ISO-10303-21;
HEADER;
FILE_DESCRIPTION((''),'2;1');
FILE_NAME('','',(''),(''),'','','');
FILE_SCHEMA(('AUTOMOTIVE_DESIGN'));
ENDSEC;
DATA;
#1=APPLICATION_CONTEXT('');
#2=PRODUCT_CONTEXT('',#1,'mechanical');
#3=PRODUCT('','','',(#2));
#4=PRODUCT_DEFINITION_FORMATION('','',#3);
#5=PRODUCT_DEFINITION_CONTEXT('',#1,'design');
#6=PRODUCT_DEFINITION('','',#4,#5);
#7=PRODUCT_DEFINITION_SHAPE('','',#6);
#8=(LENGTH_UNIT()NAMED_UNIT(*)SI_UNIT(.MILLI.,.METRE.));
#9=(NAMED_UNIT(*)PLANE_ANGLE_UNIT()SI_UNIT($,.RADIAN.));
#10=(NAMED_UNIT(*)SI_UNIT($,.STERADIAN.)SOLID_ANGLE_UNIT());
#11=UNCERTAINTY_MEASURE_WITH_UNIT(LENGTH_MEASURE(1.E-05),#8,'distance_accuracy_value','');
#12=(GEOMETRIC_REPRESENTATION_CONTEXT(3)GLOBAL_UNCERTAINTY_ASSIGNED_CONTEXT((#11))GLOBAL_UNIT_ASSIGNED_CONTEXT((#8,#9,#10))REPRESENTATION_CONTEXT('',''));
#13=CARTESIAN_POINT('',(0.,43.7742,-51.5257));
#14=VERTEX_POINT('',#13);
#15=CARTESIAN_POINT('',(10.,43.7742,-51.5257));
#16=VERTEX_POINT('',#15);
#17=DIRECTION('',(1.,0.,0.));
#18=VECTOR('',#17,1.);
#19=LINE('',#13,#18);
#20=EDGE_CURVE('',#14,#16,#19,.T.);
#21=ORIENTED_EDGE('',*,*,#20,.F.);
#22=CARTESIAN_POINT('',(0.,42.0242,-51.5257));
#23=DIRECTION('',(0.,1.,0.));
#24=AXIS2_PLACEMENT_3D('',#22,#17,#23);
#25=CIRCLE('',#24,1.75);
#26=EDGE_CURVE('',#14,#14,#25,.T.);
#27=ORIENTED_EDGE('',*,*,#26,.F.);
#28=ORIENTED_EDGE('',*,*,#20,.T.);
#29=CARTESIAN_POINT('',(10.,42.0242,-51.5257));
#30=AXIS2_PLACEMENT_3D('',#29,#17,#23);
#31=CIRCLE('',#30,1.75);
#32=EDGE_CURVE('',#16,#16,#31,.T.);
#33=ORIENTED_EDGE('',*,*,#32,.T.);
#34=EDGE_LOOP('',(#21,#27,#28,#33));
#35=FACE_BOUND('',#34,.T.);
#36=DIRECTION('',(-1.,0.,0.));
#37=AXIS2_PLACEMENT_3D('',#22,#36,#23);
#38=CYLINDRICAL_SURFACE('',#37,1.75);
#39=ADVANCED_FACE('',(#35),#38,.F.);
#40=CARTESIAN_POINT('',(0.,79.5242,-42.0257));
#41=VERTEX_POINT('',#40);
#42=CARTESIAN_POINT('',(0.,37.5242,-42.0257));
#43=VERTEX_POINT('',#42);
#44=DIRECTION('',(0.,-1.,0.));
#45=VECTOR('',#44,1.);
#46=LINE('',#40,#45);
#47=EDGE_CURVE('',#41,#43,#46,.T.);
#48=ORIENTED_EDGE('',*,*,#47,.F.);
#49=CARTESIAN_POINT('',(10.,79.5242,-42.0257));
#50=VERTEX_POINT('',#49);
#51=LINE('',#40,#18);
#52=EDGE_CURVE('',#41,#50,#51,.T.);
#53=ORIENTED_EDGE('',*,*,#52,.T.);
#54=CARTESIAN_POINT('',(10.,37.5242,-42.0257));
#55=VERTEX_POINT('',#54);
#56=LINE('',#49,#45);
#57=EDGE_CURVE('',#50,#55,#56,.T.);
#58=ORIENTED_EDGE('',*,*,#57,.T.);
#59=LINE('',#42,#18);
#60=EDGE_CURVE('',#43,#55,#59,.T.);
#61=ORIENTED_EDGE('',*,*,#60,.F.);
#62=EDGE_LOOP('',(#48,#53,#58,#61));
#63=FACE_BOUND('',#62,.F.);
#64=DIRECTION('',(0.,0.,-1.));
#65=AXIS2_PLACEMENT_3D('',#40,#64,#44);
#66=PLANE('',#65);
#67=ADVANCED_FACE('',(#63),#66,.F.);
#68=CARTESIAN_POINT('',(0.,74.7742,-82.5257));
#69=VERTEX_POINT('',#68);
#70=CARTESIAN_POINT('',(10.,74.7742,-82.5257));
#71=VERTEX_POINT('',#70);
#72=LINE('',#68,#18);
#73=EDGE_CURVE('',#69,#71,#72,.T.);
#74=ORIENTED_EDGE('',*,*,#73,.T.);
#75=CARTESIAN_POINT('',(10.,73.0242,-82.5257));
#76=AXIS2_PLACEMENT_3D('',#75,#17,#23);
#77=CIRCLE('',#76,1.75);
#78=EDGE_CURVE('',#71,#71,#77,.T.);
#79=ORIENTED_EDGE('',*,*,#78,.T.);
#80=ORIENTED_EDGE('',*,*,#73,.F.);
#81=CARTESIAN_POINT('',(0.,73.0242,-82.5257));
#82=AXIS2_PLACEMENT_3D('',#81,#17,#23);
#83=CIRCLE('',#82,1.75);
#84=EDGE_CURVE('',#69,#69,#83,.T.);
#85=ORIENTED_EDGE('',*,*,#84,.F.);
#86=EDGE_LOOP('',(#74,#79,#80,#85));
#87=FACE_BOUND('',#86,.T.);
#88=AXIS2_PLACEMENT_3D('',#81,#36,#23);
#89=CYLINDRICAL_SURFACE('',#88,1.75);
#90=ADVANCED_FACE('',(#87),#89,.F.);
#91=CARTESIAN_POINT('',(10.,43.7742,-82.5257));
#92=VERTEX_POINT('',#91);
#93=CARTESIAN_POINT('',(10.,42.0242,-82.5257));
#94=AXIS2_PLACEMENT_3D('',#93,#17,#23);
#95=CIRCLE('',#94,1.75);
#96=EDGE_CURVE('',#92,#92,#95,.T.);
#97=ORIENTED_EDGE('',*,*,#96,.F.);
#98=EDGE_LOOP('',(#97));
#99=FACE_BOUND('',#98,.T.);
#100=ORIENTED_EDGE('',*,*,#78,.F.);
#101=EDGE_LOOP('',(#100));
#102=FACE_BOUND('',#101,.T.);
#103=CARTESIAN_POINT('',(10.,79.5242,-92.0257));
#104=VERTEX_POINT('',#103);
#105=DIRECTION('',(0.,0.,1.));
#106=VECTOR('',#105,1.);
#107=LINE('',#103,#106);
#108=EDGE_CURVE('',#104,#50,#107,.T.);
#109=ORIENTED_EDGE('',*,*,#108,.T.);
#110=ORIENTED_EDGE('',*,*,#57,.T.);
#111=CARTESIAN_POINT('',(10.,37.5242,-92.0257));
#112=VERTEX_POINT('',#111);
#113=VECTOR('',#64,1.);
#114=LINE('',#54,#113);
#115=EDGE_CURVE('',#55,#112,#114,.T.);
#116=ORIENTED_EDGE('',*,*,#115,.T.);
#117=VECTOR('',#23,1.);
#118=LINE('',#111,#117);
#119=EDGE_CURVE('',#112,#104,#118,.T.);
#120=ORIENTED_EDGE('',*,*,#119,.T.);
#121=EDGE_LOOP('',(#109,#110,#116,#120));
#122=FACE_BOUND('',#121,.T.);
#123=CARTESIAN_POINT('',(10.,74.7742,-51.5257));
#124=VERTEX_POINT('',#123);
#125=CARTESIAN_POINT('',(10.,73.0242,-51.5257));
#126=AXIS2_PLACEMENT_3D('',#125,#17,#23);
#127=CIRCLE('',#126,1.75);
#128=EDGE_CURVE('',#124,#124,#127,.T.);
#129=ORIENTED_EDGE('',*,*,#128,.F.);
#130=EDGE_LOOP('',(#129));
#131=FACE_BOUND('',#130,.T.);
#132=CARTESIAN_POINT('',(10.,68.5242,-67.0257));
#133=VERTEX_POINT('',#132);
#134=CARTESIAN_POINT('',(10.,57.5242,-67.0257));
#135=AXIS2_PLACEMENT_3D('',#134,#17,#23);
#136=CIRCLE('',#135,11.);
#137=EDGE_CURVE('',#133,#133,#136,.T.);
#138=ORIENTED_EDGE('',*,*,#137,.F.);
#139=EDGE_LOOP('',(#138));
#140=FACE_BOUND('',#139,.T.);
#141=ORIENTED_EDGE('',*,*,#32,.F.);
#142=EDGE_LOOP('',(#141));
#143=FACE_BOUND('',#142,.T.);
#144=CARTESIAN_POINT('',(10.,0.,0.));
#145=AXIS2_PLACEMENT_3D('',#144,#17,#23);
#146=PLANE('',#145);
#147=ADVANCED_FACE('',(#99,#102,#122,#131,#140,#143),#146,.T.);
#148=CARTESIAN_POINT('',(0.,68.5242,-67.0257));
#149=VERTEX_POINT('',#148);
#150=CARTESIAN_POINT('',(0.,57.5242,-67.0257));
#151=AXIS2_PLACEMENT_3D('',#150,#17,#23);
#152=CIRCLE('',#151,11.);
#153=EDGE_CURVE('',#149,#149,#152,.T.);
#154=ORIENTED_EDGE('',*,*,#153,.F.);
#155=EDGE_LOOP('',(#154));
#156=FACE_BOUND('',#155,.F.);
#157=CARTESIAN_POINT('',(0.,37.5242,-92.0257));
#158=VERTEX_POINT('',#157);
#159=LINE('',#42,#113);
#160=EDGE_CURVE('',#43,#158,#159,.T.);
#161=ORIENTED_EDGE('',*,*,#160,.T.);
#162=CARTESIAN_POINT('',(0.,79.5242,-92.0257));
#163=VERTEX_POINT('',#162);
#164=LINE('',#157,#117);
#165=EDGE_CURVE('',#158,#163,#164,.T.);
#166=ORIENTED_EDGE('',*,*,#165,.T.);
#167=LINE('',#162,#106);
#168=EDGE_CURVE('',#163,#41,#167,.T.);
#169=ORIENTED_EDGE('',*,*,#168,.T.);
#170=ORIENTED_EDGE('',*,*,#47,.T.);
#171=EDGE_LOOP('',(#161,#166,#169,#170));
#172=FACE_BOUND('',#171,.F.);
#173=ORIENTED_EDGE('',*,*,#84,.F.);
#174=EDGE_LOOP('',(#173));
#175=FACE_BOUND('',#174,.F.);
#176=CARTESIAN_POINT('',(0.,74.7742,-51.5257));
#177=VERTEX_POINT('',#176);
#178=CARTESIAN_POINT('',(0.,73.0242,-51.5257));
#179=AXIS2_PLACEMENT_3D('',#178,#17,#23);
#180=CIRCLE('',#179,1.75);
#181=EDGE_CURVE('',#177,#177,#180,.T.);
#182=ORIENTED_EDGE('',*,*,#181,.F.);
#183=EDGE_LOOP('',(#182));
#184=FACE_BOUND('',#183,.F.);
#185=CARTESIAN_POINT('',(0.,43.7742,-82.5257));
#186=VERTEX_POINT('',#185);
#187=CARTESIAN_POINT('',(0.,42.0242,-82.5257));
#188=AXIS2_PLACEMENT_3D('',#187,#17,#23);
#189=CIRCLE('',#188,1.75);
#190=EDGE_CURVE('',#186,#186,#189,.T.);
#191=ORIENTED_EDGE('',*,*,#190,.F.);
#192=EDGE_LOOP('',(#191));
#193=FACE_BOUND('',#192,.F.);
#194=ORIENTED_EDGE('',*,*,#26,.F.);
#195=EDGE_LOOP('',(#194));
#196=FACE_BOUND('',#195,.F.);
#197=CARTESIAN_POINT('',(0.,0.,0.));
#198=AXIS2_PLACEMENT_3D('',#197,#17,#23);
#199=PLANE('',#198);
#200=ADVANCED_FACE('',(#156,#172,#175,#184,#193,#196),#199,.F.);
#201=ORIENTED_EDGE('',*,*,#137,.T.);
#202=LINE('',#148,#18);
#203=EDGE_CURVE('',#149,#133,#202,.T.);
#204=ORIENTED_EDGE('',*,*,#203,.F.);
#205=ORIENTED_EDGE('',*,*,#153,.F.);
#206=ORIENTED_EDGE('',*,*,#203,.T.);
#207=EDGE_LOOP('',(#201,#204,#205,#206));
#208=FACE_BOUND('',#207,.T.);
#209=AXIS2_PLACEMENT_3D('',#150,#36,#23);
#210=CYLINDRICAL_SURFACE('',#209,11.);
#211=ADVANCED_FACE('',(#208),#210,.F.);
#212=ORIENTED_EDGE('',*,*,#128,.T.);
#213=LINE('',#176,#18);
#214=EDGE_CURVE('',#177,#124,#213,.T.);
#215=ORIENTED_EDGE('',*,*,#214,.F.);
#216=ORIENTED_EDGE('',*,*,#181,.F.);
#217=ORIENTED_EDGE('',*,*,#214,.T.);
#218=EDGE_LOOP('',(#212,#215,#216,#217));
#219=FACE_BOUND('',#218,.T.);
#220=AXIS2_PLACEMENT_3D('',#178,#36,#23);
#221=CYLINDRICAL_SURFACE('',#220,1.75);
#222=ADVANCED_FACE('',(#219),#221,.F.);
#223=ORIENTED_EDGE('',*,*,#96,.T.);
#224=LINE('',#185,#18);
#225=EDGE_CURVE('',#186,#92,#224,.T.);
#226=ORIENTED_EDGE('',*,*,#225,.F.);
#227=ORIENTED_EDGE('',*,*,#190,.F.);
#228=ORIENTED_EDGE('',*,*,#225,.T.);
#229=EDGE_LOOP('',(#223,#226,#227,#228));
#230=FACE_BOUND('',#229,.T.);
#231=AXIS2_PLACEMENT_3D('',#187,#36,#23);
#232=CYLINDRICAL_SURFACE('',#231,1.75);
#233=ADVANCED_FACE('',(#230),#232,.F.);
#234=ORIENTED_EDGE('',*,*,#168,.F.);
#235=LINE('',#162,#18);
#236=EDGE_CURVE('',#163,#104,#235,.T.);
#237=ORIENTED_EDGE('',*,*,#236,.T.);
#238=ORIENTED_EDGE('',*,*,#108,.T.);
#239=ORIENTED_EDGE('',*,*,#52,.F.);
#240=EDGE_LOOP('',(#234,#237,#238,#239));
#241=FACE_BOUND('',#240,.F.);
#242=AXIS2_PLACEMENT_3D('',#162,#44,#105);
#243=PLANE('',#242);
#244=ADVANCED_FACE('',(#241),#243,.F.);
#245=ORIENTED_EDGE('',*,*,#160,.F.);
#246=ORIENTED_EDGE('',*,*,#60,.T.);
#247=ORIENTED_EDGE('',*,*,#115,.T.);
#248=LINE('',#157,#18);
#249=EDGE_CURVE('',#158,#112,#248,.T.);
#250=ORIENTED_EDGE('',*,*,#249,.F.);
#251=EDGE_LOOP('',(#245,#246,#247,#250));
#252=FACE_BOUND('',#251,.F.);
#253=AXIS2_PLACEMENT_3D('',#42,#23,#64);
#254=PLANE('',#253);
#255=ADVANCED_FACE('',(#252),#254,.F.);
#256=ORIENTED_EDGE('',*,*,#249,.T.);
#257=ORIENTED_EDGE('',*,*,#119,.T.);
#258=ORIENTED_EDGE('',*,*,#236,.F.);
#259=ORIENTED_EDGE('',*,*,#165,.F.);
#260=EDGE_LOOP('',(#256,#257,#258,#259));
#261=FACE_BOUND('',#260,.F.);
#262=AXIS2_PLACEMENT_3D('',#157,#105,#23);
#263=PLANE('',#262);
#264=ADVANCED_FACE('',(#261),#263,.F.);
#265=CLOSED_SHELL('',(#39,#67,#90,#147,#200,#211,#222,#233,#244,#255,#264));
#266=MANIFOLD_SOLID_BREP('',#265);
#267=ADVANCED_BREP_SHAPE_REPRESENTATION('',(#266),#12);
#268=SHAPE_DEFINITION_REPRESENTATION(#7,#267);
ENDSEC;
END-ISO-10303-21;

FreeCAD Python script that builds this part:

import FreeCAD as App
import Part
import Sketcher
from FreeCAD import Vector
Q = App.Units.Quantity


def add_polygon(sketch, points):
    """Adds a closed chain of lines whose ends are joined by coincident constraints."""
    first, n = sketch.GeometryCount, len(points)
    for a, b in zip(points, points[1:] + points[:1]):
        sketch.addGeometry(Part.LineSegment(App.Vector(*a, 0), App.Vector(*b, 0)), False)
    for i in range(n):
        sketch.addConstraint(Sketcher.Constraint("Coincident", first + i, 2, first + (i + 1) % n, 1))

doc = App.newDocument("Part")
body = doc.addObject("PartDesign::Body", "Body")

sketch1 = doc.addObject("Sketcher::SketchObject", "Sketch")
body.addObject(sketch1)
sketch1.AttachmentSupport = (doc.YZ_Plane, [""])
sketch1.MapMode = "FlatFace"
add_polygon(sketch1, [(37.5, -42), (37.5, -92), (79.5, -92), (79.5, -42)])
sketch1.addGeometry(Part.Circle(Vector(42, -82.5, 0), Vector(0, 0, 1), 1.8), False)
sketch1.addGeometry(Part.Circle(Vector(73, -82.5, 0), Vector(0, 0, 1), 1.8), False)
sketch1.addGeometry(Part.Circle(Vector(57.5, -67, 0), Vector(0, 0, 1), 11), False)
sketch1.addGeometry(Part.Circle(Vector(42, -51.5, 0), Vector(0, 0, 1), 1.8), False)
sketch1.addGeometry(Part.Circle(Vector(73, -51.5, 0), Vector(0, 0, 1), 1.8), False)
sketch1.addConstraint(Sketcher.Constraint("Vertical", 0))
sketch1.addConstraint(Sketcher.Constraint("Horizontal", 1))
sketch1.addConstraint(Sketcher.Constraint("Vertical", 2))
sketch1.addConstraint(Sketcher.Constraint("Horizontal", 3))
sketch1.addConstraint(Sketcher.Constraint("Equal", 4, 5))
sketch1.addConstraint(Sketcher.Constraint("Equal", 5, 7))
sketch1.addConstraint(Sketcher.Constraint("Equal", 7, 8))
sketch1.addConstraint(Sketcher.Constraint("Horizontal", 4, 3, 5, 3))
sketch1.addConstraint(Sketcher.Constraint("Horizontal", 7, 3, 8, 3))
sketch1.addConstraint(Sketcher.Constraint("Vertical", 4, 3, 7, 3))
sketch1.addConstraint(Sketcher.Constraint("Vertical", 5, 3, 8, 3))
sketch1.addConstraint(Sketcher.Constraint("Diameter", 6, Q("22 mm")))
sketch1.addConstraint(Sketcher.Constraint("Diameter", 4, Q("3.5 mm")))
sketch1.addConstraint(Sketcher.Constraint("DistanceX", 1, 1, 1, 2, Q("42 mm")))
sketch1.addConstraint(Sketcher.Constraint("DistanceY", 0, 2, 0, 1, Q("50 mm")))
sketch1.addConstraint(Sketcher.Constraint("DistanceX", 4, 3, 5, 3, Q("31 mm")))
sketch1.addConstraint(Sketcher.Constraint("DistanceY", 4, 3, 7, 3, Q("31 mm")))
sketch1.addConstraint(Sketcher.Constraint("DistanceY", 0, 2, 6, 3, Q("25 mm")))
sketch1.addConstraint(Sketcher.Constraint("DistanceX", 6, 3, 1, 2, Q("22 mm")))
sketch1.addConstraint(Sketcher.Constraint("DistanceX", 6, 3, 5, 3, Q("15.5 mm")))
sketch1.addConstraint(Sketcher.Constraint("DistanceY", 5, 3, 6, 3, Q("15.5 mm")))
sketch1.addConstraint(Sketcher.Constraint("DistanceX", -1, 1, 4, 3, Q("42.0242 mm")))
sketch1.addConstraint(Sketcher.Constraint("DistanceY", 4, 3, -1, 1, Q("82.5257 mm")))
pad1 = doc.addObject("PartDesign::Pad", "Pad")
body.addObject(pad1)
pad1.Profile = sketch1
pad1.Length = 10

doc.recompute()
